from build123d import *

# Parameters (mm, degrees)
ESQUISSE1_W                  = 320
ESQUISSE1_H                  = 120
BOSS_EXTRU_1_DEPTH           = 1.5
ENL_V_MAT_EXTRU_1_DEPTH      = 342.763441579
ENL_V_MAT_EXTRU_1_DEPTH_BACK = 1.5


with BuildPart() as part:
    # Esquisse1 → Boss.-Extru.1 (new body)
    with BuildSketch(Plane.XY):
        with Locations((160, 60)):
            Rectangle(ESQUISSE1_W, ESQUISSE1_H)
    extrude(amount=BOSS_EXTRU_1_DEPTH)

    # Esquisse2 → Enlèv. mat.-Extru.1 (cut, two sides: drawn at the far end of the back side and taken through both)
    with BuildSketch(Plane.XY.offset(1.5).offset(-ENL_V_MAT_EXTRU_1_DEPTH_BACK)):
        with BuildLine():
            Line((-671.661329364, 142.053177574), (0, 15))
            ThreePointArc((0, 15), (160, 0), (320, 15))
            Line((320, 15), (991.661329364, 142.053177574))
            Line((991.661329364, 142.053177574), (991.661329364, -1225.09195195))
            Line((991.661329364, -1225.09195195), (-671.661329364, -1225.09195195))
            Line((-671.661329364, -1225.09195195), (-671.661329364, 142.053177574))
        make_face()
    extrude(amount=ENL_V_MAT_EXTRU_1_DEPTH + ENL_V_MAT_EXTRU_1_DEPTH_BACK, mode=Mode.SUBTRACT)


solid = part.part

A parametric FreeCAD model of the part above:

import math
import FreeCAD as App
import Part
import Sketcher


def add_polygon(sketch, points):
    """Adds a closed chain of lines whose ends are joined by coincident constraints."""
    first, n = sketch.GeometryCount, len(points)
    for a, b in zip(points, points[1:] + points[:1]):
        sketch.addGeometry(Part.LineSegment(App.Vector(*a, 0), App.Vector(*b, 0)), False)
    for i in range(n):
        sketch.addConstraint(Sketcher.Constraint("Coincident", first + i, 2, first + (i + 1) % n, 1))

doc = App.newDocument("Part")
body = doc.addObject("PartDesign::Body", "Body")

sketch1 = doc.addObject("Sketcher::SketchObject", "Sketch")
body.addObject(sketch1)
sketch1.AttachmentSupport = (doc.XY_Plane, [""])
sketch1.MapMode = "FlatFace"
add_polygon(sketch1, [(0, 120), (0, 0), (320, 0), (320, 120)])
sketch1.addConstraint([
    Sketcher.Constraint("Vertical", 0),
    Sketcher.Constraint("Horizontal", 1),
    Sketcher.Constraint("Vertical", 2),
    Sketcher.Constraint("Horizontal", 3),
    Sketcher.Constraint("Coincident", 0, 2, -1, 1),
    Sketcher.Constraint("DistanceX", 1, 1, 1, 2, 320.0),
    Sketcher.Constraint("DistanceY", 0, 2, 0, 1, 120.0),
])
pad1 = doc.addObject("PartDesign::Pad", "Pad")
body.addObject(pad1)
pad1.Profile = sketch1
pad1.Length = 1.5

sketch2 = doc.addObject("Sketcher::SketchObject", "Sketch001")
body.addObject(sketch2)
sketch2.AttachmentSupport = (doc.XY_Plane, [""])
sketch2.MapMode = "FlatFace"
sketch2.AttachmentOffset = App.Placement(App.Vector(0, 0, 1.5), App.Rotation())
sketch2.addGeometry([
    Part.LineSegment(App.Vector(0, 15, 0), App.Vector(-672, 142, 0)),
    Part.LineSegment(App.Vector(-672, 142, 0), App.Vector(-672, -1225, 0)),
    Part.LineSegment(App.Vector(-672, -1225, 0), App.Vector(992, -1225, 0)),
    Part.LineSegment(App.Vector(992, -1225, 0), App.Vector(992, 142, 0)),
    Part.LineSegment(App.Vector(992, 142, 0), App.Vector(320, 15, 0)),
    Part.ArcOfCircle(Part.Circle(App.Vector(160, 861, 0), App.Vector(0, 0, 1), 861), math.radians(-101), math.radians(-79)),
], False)
sketch2.addConstraint([
    Sketcher.Constraint("Coincident", 0, 2, 1, 1),
    Sketcher.Constraint("Coincident", 1, 2, 2, 1),
    Sketcher.Constraint("Coincident", 2, 2, 3, 1),
    Sketcher.Constraint("Coincident", 3, 2, 4, 1),
    Sketcher.Constraint("Tangent", 4, 2, 5, 2),
    Sketcher.Constraint("Tangent", 5, 1, 0, 1),
    Sketcher.Constraint("Vertical", 1),
    Sketcher.Constraint("Horizontal", 2),
    Sketcher.Constraint("Vertical", 3),
    Sketcher.Constraint("Horizontal", 0, 2, 3, 2),
    Sketcher.Constraint("Equal", 0, 4),
    Sketcher.Constraint("DistanceX", -1, 1, 5, 3, 160.0),
    Sketcher.Constraint("DistanceX", -1, 1, 4, 2, 320.0),
    Sketcher.Constraint("DistanceY", -1, 1, 4, 2, 15.0),
    Sketcher.Constraint("Radius", 5, 860.833333),
    Sketcher.Constraint("DistanceX", 2, 1, 2, 2, 1663.322659),
    Sketcher.Constraint("DistanceY", 1, 2, 1, 1, 1367.14513),
])
pocket1 = doc.addObject("PartDesign::Pocket", "Pocket")
body.addObject(pocket1)
pocket1.Profile = sketch2
pocket1.Type = "ThroughAll"
pocket1.Midplane = True

doc.recompute()
